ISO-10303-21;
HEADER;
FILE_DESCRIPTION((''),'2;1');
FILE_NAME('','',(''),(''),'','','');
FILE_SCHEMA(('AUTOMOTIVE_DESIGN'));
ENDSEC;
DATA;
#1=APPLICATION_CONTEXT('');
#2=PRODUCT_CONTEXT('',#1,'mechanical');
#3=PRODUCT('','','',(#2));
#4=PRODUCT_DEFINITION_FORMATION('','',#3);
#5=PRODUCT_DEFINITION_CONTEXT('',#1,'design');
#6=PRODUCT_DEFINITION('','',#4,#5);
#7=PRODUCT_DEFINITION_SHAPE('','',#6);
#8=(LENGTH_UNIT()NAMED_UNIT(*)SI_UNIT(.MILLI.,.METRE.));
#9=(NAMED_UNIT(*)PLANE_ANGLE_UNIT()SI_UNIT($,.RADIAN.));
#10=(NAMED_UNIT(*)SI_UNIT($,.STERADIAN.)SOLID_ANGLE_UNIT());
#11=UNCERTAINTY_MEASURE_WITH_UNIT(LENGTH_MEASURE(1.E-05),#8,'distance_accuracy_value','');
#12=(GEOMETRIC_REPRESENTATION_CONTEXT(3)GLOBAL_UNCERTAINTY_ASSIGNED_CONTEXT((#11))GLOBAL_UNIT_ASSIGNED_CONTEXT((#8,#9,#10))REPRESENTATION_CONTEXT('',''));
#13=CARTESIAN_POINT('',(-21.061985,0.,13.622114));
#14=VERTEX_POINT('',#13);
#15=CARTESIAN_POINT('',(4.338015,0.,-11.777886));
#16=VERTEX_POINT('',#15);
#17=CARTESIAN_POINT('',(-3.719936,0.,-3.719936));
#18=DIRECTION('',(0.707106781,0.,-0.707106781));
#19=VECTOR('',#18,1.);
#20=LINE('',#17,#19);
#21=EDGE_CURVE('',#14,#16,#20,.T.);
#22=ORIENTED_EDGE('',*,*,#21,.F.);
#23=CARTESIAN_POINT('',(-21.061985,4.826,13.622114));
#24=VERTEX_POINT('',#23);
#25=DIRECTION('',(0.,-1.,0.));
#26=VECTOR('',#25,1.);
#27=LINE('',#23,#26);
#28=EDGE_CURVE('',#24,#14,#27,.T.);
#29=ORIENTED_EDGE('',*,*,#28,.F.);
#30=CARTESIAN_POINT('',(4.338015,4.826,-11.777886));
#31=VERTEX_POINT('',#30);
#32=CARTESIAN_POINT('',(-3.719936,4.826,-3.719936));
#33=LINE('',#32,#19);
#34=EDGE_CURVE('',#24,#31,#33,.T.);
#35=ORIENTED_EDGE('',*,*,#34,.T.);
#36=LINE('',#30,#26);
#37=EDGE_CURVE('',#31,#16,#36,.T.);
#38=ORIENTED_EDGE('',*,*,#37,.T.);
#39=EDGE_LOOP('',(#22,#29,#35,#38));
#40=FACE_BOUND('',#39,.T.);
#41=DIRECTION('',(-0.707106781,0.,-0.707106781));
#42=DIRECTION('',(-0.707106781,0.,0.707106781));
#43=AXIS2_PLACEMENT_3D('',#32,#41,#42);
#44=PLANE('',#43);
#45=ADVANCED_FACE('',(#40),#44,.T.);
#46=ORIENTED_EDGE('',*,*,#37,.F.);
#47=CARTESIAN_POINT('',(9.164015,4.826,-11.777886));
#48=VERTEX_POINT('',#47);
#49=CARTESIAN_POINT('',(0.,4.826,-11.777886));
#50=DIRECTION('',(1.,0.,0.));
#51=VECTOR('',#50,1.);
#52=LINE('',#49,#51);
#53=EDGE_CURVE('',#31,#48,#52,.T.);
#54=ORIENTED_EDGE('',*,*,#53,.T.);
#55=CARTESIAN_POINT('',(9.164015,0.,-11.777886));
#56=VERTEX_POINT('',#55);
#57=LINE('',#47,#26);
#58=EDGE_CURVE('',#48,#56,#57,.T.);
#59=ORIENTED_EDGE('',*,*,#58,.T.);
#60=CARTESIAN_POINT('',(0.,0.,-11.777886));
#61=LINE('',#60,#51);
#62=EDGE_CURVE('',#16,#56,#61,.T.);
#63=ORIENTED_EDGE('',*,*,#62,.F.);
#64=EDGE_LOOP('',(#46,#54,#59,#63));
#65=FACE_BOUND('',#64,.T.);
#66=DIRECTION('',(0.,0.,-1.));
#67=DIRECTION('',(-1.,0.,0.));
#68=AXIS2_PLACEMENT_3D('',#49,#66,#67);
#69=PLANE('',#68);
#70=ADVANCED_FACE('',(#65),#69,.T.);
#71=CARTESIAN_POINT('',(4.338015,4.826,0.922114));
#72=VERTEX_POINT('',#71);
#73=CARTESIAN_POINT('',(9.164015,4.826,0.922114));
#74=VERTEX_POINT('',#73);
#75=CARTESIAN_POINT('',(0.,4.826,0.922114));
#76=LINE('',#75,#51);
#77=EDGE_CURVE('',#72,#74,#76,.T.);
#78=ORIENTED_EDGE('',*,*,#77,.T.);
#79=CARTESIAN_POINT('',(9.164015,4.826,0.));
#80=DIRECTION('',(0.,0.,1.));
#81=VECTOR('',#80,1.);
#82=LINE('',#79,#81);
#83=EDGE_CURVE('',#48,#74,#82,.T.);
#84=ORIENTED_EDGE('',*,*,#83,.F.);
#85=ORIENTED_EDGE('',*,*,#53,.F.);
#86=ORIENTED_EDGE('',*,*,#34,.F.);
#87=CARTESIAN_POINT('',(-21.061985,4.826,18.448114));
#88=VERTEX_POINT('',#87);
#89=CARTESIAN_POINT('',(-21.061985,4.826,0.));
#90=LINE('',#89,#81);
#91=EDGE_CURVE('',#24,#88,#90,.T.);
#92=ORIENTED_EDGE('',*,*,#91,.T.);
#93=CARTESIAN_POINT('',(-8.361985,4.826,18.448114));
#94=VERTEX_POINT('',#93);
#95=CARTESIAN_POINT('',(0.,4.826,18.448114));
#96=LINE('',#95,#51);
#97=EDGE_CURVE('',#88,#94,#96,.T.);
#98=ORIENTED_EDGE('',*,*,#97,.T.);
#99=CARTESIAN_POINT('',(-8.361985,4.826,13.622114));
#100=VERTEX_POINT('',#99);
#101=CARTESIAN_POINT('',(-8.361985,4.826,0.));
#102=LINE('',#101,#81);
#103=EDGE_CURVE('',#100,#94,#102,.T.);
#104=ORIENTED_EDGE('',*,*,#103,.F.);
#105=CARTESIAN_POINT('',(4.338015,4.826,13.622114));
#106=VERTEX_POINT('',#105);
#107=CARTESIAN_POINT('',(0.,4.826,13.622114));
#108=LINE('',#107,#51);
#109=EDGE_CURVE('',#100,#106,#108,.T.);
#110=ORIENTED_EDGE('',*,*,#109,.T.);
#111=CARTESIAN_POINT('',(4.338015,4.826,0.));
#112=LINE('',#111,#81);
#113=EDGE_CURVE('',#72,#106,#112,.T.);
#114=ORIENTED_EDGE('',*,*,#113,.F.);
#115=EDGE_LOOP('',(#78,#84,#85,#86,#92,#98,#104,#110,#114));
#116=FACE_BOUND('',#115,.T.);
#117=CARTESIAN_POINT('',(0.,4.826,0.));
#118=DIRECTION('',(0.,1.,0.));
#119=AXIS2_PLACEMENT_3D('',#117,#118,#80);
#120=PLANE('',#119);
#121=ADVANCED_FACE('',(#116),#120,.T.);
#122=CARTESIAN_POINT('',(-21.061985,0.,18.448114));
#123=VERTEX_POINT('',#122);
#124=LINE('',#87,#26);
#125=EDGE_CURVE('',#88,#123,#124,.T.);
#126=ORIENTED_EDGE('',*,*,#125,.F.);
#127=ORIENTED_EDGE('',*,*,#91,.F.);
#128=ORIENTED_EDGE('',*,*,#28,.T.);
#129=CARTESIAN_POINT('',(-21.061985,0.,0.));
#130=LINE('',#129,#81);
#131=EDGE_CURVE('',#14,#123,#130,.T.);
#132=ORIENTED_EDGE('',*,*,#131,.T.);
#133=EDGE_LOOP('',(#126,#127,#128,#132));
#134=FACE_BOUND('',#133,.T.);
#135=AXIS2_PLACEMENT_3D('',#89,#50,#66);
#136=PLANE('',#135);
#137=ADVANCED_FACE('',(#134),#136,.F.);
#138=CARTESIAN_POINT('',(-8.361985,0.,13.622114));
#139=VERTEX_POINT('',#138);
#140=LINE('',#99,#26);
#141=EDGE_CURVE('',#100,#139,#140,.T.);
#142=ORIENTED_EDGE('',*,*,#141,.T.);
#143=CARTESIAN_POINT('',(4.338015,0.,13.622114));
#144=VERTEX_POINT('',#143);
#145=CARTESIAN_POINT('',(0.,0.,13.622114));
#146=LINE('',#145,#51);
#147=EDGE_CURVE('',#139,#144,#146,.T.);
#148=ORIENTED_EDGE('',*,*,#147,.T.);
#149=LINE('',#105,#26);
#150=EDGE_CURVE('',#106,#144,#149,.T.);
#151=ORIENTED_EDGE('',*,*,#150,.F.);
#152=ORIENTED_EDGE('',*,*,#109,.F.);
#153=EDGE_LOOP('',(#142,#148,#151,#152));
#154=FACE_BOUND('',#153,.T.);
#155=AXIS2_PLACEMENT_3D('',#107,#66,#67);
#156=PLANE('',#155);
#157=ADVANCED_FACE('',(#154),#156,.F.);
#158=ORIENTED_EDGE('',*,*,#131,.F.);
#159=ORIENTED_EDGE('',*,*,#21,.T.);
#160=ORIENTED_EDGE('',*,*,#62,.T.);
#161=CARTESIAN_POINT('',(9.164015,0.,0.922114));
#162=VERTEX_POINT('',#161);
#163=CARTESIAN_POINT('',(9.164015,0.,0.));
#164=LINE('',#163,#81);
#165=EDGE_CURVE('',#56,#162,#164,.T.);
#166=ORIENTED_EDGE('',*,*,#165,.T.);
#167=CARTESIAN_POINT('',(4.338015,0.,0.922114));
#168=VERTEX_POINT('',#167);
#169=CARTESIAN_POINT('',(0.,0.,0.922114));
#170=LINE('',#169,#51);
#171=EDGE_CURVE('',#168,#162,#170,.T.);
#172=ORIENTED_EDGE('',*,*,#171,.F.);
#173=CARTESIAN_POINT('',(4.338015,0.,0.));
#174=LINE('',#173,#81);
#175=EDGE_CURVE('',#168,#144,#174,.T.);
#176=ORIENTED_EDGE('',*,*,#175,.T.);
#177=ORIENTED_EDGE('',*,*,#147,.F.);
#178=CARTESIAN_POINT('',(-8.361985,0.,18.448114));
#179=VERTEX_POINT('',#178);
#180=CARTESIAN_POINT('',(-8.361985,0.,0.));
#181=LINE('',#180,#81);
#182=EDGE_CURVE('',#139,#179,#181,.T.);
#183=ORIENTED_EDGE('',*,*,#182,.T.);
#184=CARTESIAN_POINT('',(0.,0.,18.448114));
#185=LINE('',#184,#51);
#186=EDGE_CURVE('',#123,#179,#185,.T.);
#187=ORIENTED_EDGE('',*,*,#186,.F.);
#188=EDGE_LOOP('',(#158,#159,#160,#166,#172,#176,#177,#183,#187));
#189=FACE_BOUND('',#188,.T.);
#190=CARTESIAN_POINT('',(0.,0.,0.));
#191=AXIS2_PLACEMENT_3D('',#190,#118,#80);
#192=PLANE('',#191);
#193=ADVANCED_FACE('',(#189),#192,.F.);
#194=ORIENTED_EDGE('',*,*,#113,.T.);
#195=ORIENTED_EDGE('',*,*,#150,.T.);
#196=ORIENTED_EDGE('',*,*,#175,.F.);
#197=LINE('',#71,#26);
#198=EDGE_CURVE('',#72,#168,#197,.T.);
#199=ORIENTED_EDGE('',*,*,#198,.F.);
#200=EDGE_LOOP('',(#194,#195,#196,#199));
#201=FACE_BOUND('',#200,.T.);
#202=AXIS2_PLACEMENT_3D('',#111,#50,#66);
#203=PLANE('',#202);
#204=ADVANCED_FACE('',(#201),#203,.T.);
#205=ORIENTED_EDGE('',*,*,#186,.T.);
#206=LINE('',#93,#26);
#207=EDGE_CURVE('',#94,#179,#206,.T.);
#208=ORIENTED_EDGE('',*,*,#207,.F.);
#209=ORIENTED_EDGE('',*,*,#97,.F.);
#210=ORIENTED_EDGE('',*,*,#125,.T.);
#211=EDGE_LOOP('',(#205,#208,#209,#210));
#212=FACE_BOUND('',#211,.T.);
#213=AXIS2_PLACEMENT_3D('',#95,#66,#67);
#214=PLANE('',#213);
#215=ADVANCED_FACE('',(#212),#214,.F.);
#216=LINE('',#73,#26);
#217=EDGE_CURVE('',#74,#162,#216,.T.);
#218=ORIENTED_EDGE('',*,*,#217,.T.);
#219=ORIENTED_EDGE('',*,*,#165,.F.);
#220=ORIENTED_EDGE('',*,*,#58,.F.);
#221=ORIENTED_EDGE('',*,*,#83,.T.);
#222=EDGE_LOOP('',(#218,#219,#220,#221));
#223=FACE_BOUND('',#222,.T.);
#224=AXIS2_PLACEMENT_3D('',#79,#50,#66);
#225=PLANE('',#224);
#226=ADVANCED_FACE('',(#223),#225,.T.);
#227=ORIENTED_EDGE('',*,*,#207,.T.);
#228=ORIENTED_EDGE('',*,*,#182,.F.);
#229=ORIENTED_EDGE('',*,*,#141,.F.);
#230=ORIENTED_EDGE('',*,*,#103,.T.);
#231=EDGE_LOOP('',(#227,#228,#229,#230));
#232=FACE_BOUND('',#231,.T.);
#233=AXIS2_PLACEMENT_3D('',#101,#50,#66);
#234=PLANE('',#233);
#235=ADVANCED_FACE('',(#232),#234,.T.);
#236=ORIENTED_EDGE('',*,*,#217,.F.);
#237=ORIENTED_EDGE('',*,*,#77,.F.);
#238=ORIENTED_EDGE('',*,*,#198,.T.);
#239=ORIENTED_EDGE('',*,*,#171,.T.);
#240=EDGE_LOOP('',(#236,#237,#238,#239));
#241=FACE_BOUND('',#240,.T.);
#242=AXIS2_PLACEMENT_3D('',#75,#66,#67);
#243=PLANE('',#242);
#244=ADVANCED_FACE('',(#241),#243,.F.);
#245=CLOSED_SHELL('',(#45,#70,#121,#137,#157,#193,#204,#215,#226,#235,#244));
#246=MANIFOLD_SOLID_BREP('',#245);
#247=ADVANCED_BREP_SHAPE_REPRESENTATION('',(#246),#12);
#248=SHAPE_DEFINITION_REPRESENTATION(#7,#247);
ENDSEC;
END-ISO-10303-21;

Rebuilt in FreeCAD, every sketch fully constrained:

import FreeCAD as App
import Part
import Sketcher

V = App.Vector
Q = App.Units.Quantity

doc = App.newDocument("Part")
body = doc.addObject("PartDesign::Body", "Body")

sketch1 = doc.addObject("Sketcher::SketchObject", "Sketch")
body.addObject(sketch1)
sketch1.AttachmentSupport = (doc.XZ_Plane, [""])
sketch1.MapMode = "FlatFace"
sketch1.addGeometry([
    Part.LineSegment(V(-21.1, 13.6, 0), V(-21.1, 18.4, 0)),
    Part.LineSegment(V(-21.1, 18.4, 0), V(-8.4, 18.4, 0)),
    Part.LineSegment(V(-8.4, 18.4, 0), V(-8.4, 13.6, 0)),
    Part.LineSegment(V(-8.4, 13.6, 0), V(4.3, 13.6, 0)),
    Part.LineSegment(V(4.3, 13.6, 0), V(4.3, 0.9, 0)),
    Part.LineSegment(V(4.3, 0.9, 0), V(9.2, 0.9, 0)),
    Part.LineSegment(V(9.2, 0.9, 0), V(9.2, -11.8, 0)),
    Part.LineSegment(V(9.2, -11.8, 0), V(4.3, -11.8, 0)),
    Part.LineSegment(V(4.3, -11.8, 0), V(-21.1, 13.6, 0)),
], False)
sketch1.addConstraint([
    Sketcher.Constraint("Coincident", 0, 2, 1, 1),
    Sketcher.Constraint("Coincident", 1, 2, 2, 1),
    Sketcher.Constraint("Coincident", 2, 2, 3, 1),
    Sketcher.Constraint("Coincident", 3, 2, 4, 1),
    Sketcher.Constraint("Coincident", 4, 2, 5, 1),
    Sketcher.Constraint("Coincident", 5, 2, 6, 1),
    Sketcher.Constraint("Coincident", 6, 2, 7, 1),
    Sketcher.Constraint("Coincident", 7, 2, 8, 1),
    Sketcher.Constraint("Coincident", 8, 2, 0, 1),
    Sketcher.Constraint("Vertical", 0),
    Sketcher.Constraint("Horizontal", 1),
    Sketcher.Constraint("Vertical", 2),
    Sketcher.Constraint("Horizontal", 3),
    Sketcher.Constraint("Vertical", 4),
    Sketcher.Constraint("Horizontal", 5),
    Sketcher.Constraint("Vertical", 6),
    Sketcher.Constraint("Horizontal", 7),
    Sketcher.Constraint("Horizontal", 3, 2, 8, 2),
    Sketcher.Constraint("Vertical", 4, 2, 7, 2),
    Sketcher.Constraint("Equal", 1, 3),
    Sketcher.Constraint("Equal", 7, 0),
    Sketcher.Constraint("Equal", 3, 4),
    Sketcher.Constraint("Equal", 4, 6),
    Sketcher.Constraint("DistanceX", 1, 1, 1, 2, Q("0.5 in")),
    Sketcher.Constraint("DistanceX", 5, 1, 5, 2, Q("0.19 in")),
    Sketcher.Constraint("DistanceX", 0, 2, -1, 1, Q("21.061985 mm")),
    Sketcher.Constraint("DistanceY", -1, 1, 0, 2, Q("18.448114 mm")),
])
pad1 = doc.addObject("PartDesign::Pad", "Pad")
body.addObject(pad1)
pad1.Profile = sketch1
pad1.Length = Q("0.19 in")
pad1.Reversed = True

doc.recompute()
